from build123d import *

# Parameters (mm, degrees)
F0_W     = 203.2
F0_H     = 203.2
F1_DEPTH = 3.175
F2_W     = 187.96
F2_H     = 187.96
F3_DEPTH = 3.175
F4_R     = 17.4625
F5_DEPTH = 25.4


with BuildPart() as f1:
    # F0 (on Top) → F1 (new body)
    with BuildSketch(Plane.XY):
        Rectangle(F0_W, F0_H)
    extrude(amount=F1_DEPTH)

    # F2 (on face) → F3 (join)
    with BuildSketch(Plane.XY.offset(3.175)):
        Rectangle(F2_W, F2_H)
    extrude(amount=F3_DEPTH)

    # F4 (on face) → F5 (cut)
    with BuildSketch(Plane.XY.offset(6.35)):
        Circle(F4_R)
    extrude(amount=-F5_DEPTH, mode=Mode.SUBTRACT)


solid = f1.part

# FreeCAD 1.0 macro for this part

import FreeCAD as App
import Part
import Sketcher
from FreeCAD import Vector
Q = App.Units.Quantity


def add_polygon(sketch, points):
    """Adds a closed chain of lines whose ends are joined by coincident constraints."""
    first, n = sketch.GeometryCount, len(points)
    for a, b in zip(points, points[1:] + points[:1]):
        sketch.addGeometry(Part.LineSegment(App.Vector(*a, 0), App.Vector(*b, 0)), False)
    for i in range(n):
        sketch.addConstraint(Sketcher.Constraint("Coincident", first + i, 2, first + (i + 1) % n, 1))

doc = App.newDocument("Part")
body = doc.addObject("PartDesign::Body", "Body")

# Sketch on XY plane
sketch1 = body.newObject("Sketcher::SketchObject", "Sketch")
sketch1.AttachmentSupport = (doc.getObject("XY_Plane"), [""])
sketch1.MapMode = "FlatFace"
add_polygon(sketch1, [(-102, 102), (-102, -102), (102, -102), (102, 102)])  # lines 0-3
sketch1.addConstraint([
    Sketcher.Constraint("Vertical", 0),
    Sketcher.Constraint("Horizontal", 1),
    Sketcher.Constraint("Vertical", 2),
    Sketcher.Constraint("Horizontal", 3),
    Sketcher.Constraint("Symmetric", 0, 2, 2, 2, -1, 1),
    Sketcher.Constraint("Equal", 3, 0),
    Sketcher.Constraint("DistanceX", 1, 1, 1, 2, Q("8 in")),
])
pad1 = body.newObject("PartDesign::Pad", "Pad")
pad1.Profile = sketch1
pad1.Length = Q("0.125 in")

# Sketch on XY plane
sketch2 = body.newObject("Sketcher::SketchObject", "Sketch001")
sketch2.AttachmentSupport = (doc.getObject("XY_Plane"), [""])
sketch2.MapMode = "FlatFace"
sketch2.AttachmentOffset = App.Placement(Vector(0, 0, 0.125 * 25.4), App.Rotation())
add_polygon(sketch2, [(-94, 94), (-94, -94), (94, -94), (94, 94)])  # lines 0-3
sketch2.addConstraint([
    Sketcher.Constraint("Vertical", 0),
    Sketcher.Constraint("Horizontal", 1),
    Sketcher.Constraint("Vertical", 2),
    Sketcher.Constraint("Horizontal", 3),
    Sketcher.Constraint("Symmetric", 0, 2, 2, 2, -1, 1),
    Sketcher.Constraint("Equal", 3, 0),
    Sketcher.Constraint("DistanceX", 1, 1, 1, 2, Q("7.4 in")),
])
pad2 = body.newObject("PartDesign::Pad", "Pad001")
pad2.Profile = sketch2
pad2.Length = Q("0.125 in")

# Sketch on XY plane
sketch3 = body.newObject("Sketcher::SketchObject", "Sketch002")
sketch3.AttachmentSupport = (doc.getObject("XY_Plane"), [""])
sketch3.MapMode = "FlatFace"
sketch3.AttachmentOffset = App.Placement(Vector(0, 0, 0.25 * 25.4), App.Rotation())
sketch3.addGeometry(Part.Circle(Vector(0, 0, 0), Vector(0, 0, 1), 17), False)
sketch3.addConstraint([
    Sketcher.Constraint("Coincident", 0, 3, -1, 1),
    Sketcher.Constraint("Diameter", 0, Q("1.375 in")),
])
pocket1 = body.newObject("PartDesign::Pocket", "Pocket")
pocket1.Profile = sketch3
pocket1.Length = Q("1 in")

doc.recompute()
